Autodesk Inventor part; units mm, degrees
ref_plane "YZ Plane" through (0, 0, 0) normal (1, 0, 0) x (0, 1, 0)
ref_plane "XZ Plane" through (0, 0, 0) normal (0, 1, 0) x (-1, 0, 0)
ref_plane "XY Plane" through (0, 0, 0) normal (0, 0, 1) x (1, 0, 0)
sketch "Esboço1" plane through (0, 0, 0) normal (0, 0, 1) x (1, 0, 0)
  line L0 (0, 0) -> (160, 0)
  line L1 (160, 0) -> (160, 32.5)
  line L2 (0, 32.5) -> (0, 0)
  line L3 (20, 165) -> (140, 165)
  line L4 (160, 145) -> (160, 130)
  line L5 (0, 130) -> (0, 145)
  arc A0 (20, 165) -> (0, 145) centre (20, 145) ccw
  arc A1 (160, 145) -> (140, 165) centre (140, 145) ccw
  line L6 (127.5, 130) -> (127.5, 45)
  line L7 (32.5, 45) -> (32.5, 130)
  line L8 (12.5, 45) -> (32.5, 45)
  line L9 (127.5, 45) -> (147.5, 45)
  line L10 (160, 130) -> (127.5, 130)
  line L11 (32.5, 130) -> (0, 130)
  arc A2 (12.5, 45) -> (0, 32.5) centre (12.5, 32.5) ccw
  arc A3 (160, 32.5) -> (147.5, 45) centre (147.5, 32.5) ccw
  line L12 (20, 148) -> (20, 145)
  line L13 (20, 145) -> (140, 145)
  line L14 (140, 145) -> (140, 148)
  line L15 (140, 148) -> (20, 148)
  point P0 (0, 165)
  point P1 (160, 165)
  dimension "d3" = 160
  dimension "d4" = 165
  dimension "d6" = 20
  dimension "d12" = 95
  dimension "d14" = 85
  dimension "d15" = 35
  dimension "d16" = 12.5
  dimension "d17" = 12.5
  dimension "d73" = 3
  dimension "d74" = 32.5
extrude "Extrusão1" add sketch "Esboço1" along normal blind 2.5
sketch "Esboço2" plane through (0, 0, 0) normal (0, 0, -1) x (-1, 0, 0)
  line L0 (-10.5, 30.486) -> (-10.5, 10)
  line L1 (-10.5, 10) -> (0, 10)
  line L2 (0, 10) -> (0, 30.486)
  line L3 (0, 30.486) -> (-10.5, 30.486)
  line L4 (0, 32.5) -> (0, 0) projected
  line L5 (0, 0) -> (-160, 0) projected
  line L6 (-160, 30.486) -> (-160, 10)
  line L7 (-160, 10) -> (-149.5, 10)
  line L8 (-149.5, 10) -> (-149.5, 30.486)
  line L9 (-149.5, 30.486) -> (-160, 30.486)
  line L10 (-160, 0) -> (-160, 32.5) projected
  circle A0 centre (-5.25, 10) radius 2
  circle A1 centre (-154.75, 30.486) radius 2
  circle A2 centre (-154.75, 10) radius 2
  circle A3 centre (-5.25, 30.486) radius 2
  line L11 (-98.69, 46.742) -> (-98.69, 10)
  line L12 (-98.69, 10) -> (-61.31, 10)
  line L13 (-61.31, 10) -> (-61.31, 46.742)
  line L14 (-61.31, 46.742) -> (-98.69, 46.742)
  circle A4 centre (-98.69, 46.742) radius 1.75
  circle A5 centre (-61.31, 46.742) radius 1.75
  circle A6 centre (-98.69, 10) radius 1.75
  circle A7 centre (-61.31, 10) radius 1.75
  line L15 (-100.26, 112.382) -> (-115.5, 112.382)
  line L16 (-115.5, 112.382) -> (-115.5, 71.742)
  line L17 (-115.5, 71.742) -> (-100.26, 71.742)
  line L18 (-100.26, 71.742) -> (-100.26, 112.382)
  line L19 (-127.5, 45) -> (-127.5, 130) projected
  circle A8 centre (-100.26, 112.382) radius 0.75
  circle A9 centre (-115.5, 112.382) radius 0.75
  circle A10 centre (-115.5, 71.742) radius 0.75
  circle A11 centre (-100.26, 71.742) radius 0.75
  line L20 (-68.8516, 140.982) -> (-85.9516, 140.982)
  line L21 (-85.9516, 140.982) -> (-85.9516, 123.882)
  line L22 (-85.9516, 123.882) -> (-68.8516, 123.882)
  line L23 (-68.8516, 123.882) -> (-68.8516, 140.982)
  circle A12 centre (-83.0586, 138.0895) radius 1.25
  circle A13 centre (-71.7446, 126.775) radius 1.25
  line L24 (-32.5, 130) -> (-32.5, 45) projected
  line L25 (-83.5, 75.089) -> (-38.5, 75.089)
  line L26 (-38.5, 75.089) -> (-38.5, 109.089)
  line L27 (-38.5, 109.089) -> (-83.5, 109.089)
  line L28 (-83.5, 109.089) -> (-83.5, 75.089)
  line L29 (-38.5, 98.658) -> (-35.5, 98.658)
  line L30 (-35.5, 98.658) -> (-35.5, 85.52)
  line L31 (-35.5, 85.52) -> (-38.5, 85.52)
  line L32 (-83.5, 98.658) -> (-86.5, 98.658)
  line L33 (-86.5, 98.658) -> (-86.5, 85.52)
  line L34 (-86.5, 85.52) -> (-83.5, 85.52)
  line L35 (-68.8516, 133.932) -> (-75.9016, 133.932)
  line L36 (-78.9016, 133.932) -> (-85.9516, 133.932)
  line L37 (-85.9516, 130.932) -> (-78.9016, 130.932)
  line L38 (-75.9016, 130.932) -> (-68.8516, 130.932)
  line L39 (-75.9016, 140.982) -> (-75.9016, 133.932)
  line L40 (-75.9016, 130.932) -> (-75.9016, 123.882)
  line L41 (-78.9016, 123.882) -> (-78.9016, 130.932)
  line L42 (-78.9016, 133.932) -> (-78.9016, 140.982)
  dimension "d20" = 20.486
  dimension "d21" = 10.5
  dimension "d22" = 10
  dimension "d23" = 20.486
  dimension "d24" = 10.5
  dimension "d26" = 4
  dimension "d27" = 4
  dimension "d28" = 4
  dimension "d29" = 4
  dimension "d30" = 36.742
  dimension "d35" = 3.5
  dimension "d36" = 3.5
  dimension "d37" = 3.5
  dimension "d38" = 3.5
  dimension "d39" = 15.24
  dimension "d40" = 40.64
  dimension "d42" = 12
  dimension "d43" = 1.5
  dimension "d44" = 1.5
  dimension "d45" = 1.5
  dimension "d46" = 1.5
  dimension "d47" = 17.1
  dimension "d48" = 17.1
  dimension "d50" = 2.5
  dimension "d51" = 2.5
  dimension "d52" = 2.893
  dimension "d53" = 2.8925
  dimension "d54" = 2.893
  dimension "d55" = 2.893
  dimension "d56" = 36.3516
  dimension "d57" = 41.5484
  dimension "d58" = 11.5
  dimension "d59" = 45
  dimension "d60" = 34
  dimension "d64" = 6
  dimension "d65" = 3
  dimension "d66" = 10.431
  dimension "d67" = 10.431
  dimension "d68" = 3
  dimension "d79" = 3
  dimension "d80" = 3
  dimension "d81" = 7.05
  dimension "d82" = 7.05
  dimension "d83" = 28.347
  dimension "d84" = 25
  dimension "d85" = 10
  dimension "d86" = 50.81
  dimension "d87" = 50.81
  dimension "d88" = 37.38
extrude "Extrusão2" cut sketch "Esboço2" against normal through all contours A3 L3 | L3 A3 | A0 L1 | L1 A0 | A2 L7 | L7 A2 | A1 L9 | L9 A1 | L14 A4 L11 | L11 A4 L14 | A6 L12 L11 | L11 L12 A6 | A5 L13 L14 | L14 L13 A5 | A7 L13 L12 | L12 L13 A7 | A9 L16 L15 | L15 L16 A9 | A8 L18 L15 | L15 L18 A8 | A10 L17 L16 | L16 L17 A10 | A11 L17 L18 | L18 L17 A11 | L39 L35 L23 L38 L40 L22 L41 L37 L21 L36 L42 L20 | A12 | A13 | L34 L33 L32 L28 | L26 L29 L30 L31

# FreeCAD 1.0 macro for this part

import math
import FreeCAD as App
import Part
import Sketcher


def add_polygon(sketch, points):
    """Adds a closed chain of lines whose ends are joined by coincident constraints."""
    first, n = sketch.GeometryCount, len(points)
    for a, b in zip(points, points[1:] + points[:1]):
        sketch.addGeometry(Part.LineSegment(App.Vector(*a, 0), App.Vector(*b, 0)), False)
    for i in range(n):
        sketch.addConstraint(Sketcher.Constraint("Coincident", first + i, 2, first + (i + 1) % n, 1))

doc = App.newDocument("Part")
body = doc.addObject("PartDesign::Body", "Body")

# Sketch on XY plane
sketch1 = body.newObject("Sketcher::SketchObject", "Sketch")
sketch1.AttachmentSupport = (doc.getObject("XY_Plane"), [""])
sketch1.MapMode = "FlatFace"
sketch1.addGeometry(Part.LineSegment(App.Vector(0, 32.5, 0), App.Vector(0, 0, 0)), False)  # 0
sketch1.addGeometry(Part.LineSegment(App.Vector(0, 0, 0), App.Vector(160, 0, 0)), False)  # 1
sketch1.addGeometry(Part.LineSegment(App.Vector(160, 0, 0), App.Vector(160, 32.5, 0)), False)  # 2
sketch1.addGeometry(Part.ArcOfCircle(Part.Circle(App.Vector(147.5, 32.5, 0), App.Vector(0, 0, 1), 12.5), math.radians(0), math.radians(90)), False)  # 3
sketch1.addGeometry(Part.LineSegment(App.Vector(147.5, 45, 0), App.Vector(127.5, 45, 0)), False)  # 4
sketch1.addGeometry(Part.LineSegment(App.Vector(127.5, 45, 0), App.Vector(127.5, 130, 0)), False)  # 5
sketch1.addGeometry(Part.LineSegment(App.Vector(127.5, 130, 0), App.Vector(160, 130, 0)), False)  # 6
sketch1.addGeometry(Part.LineSegment(App.Vector(160, 130, 0), App.Vector(160, 145, 0)), False)  # 7
sketch1.addGeometry(Part.ArcOfCircle(Part.Circle(App.Vector(140, 145, 0), App.Vector(0, 0, 1), 20), math.radians(0), math.radians(90)), False)  # 8
sketch1.addGeometry(Part.LineSegment(App.Vector(140, 165, 0), App.Vector(20, 165, 0)), False)  # 9
sketch1.addGeometry(Part.ArcOfCircle(Part.Circle(App.Vector(20, 145, 0), App.Vector(0, 0, 1), 20), math.radians(90), math.radians(180)), False)  # 10
sketch1.addGeometry(Part.LineSegment(App.Vector(0, 145, 0), App.Vector(0, 130, 0)), False)  # 11
sketch1.addGeometry(Part.LineSegment(App.Vector(0, 130, 0), App.Vector(32.5, 130, 0)), False)  # 12
sketch1.addGeometry(Part.LineSegment(App.Vector(32.5, 130, 0), App.Vector(32.5, 45, 0)), False)  # 13
sketch1.addGeometry(Part.LineSegment(App.Vector(32.5, 45, 0), App.Vector(12.5, 45, 0)), False)  # 14
sketch1.addGeometry(Part.ArcOfCircle(Part.Circle(App.Vector(12.5, 32.5, 0), App.Vector(0, 0, 1), 12.5), math.radians(90), math.radians(180)), False)  # 15
add_polygon(sketch1, [(20, 145), (20, 148), (140, 148), (140, 145)])  # lines 16-19
sketch1.addConstraint(Sketcher.Constraint("Coincident", 0, 2, 1, 1))
sketch1.addConstraint(Sketcher.Constraint("Coincident", 1, 2, 2, 1))
sketch1.addConstraint(Sketcher.Constraint("Tangent", 2, 2, 3, 1))
sketch1.addConstraint(Sketcher.Constraint("Tangent", 3, 2, 4, 1))
sketch1.addConstraint(Sketcher.Constraint("Coincident", 4, 2, 5, 1))
sketch1.addConstraint(Sketcher.Constraint("Coincident", 5, 2, 6, 1))
sketch1.addConstraint(Sketcher.Constraint("Coincident", 6, 2, 7, 1))
sketch1.addConstraint(Sketcher.Constraint("Tangent", 7, 2, 8, 1))
sketch1.addConstraint(Sketcher.Constraint("Tangent", 8, 2, 9, 1))
sketch1.addConstraint(Sketcher.Constraint("Tangent", 9, 2, 10, 1))
sketch1.addConstraint(Sketcher.Constraint("Tangent", 10, 2, 11, 1))
sketch1.addConstraint(Sketcher.Constraint("Coincident", 11, 2, 12, 1))
sketch1.addConstraint(Sketcher.Constraint("Coincident", 12, 2, 13, 1))
sketch1.addConstraint(Sketcher.Constraint("Coincident", 13, 2, 14, 1))
sketch1.addConstraint(Sketcher.Constraint("Tangent", 14, 2, 15, 1))
sketch1.addConstraint(Sketcher.Constraint("Tangent", 15, 2, 0, 1))
sketch1.addConstraint(Sketcher.Constraint("Vertical", 0))
sketch1.addConstraint(Sketcher.Constraint("Horizontal", 1))
sketch1.addConstraint(Sketcher.Constraint("Vertical", 2))
sketch1.addConstraint(Sketcher.Constraint("Horizontal", 4))
sketch1.addConstraint(Sketcher.Constraint("Vertical", 5))
sketch1.addConstraint(Sketcher.Constraint("Horizontal", 6))
sketch1.addConstraint(Sketcher.Constraint("Vertical", 7))
sketch1.addConstraint(Sketcher.Constraint("Horizontal", 9))
sketch1.addConstraint(Sketcher.Constraint("Vertical", 11))
sketch1.addConstraint(Sketcher.Constraint("Horizontal", 12))
sketch1.addConstraint(Sketcher.Constraint("Vertical", 13))
sketch1.addConstraint(Sketcher.Constraint("Horizontal", 14))
sketch1.addConstraint(Sketcher.Constraint("Vertical", 16))
sketch1.addConstraint(Sketcher.Constraint("Horizontal", 17))
sketch1.addConstraint(Sketcher.Constraint("Vertical", 18))
sketch1.addConstraint(Sketcher.Constraint("Horizontal", 19))
sketch1.addConstraint(Sketcher.Constraint("Coincident", 0, 2, -1, 1))
sketch1.addConstraint(Sketcher.Constraint("Coincident", 18, 2, 8, 3))
sketch1.addConstraint(Sketcher.Constraint("Coincident", 19, 2, 10, 3))
sketch1.addConstraint(Sketcher.Constraint("Equal", 3, 15))
sketch1.addConstraint(Sketcher.Constraint("PointOnObject", 10, 2, -2))
sketch1.addConstraint(Sketcher.Constraint("Horizontal", 3, 3, 15, 3))
sketch1.addConstraint(Sketcher.Constraint("Horizontal", 6, 2, 11, 2))
sketch1.addConstraint(Sketcher.Constraint("Vertical", 2, 2, 6, 2))
sketch1.addConstraint(Sketcher.Constraint("Equal", 6, 12))
sketch1.addConstraint(Sketcher.Constraint("Equal", 12, 0))
sketch1.addConstraint(Sketcher.Constraint("Radius", 8, 20.0))
sketch1.addConstraint(Sketcher.Constraint("Radius", 3, 12.5))
sketch1.addConstraint(Sketcher.Constraint("DistanceX", 1, 1, 1, 2, 160.0))
sketch1.addConstraint(Sketcher.Constraint("DistanceX", 4, 2, 4, 1, 20.0))
sketch1.addConstraint(Sketcher.Constraint("DistanceY", 5, 1, 5, 2, 85.0))
sketch1.addConstraint(Sketcher.Constraint("DistanceY", 16, 1, 16, 2, 3.0))
sketch1.addConstraint(Sketcher.Constraint("DistanceY", -1, 1, 8, 2, 165.0))
pad1 = body.newObject("PartDesign::Pad", "Pad")
pad1.Profile = sketch1
pad1.Length = 2.5

# Sketch on XY plane
sketch2 = body.newObject("Sketcher::SketchObject", "Sketch001")
sketch2.AttachmentSupport = (doc.getObject("XY_Plane"), [""])
sketch2.MapMode = "FlatFace"
sketch2.addGeometry(Part.Circle(App.Vector(5.25, 30.486, 0), App.Vector(0, 0, 1), 2), False)  # 0
sketch2.addGeometry(Part.Circle(App.Vector(5.25, 10, 0), App.Vector(0, 0, 1), 2), False)  # 1
sketch2.addGeometry(Part.Circle(App.Vector(154.75, 10, 0), App.Vector(0, 0, 1), 2), False)  # 2
sketch2.addGeometry(Part.Circle(App.Vector(154.75, 30.486, 0), App.Vector(0, 0, 1), 2), False)  # 3
sketch2.addGeometry(Part.Circle(App.Vector(98.69, 46.742, 0), App.Vector(0, 0, 1), 1.75), False)  # 4
sketch2.addGeometry(Part.Circle(App.Vector(98.69, 10, 0), App.Vector(0, 0, 1), 1.75), False)  # 5
sketch2.addGeometry(Part.Circle(App.Vector(61.31, 46.742, 0), App.Vector(0, 0, 1), 1.75), False)  # 6
sketch2.addGeometry(Part.Circle(App.Vector(61.31, 10, 0), App.Vector(0, 0, 1), 1.75), False)  # 7
sketch2.addGeometry(Part.Circle(App.Vector(115.5, 112.382, 0), App.Vector(0, 0, 1), 0.75), False)  # 8
sketch2.addGeometry(Part.Circle(App.Vector(100.26, 112.382, 0), App.Vector(0, 0, 1), 0.75), False)  # 9
sketch2.addGeometry(Part.Circle(App.Vector(115.5, 71.742, 0), App.Vector(0, 0, 1), 0.75), False)  # 10
sketch2.addGeometry(Part.Circle(App.Vector(100.26, 71.742, 0), App.Vector(0, 0, 1), 0.75), False)  # 11
add_polygon(sketch2, [(75.9016, 133.932), (75.9016, 140.982), (78.9016, 140.982), (78.9016, 133.932), (85.9516, 133.932), (85.9516, 130.932), (78.9016, 130.932), (78.9016, 123.882), (75.9016, 123.882), (75.9016, 130.932), (68.8516, 130.932), (68.8516, 133.932)])  # lines 12-23
sketch2.addGeometry(Part.Circle(App.Vector(83.0586, 138.0895, 0), App.Vector(0, 0, 1), 1.25), False)  # 24
sketch2.addGeometry(Part.Circle(App.Vector(71.7446, 126.775, 0), App.Vector(0, 0, 1), 1.25), False)  # 25
add_polygon(sketch2, [(86.5, 85.52), (83.5, 85.52), (83.5, 98.658), (86.5, 98.658)])  # lines 26-29
add_polygon(sketch2, [(38.5, 98.658), (38.5, 85.52), (35.5, 85.52), (35.5, 98.658)])  # lines 30-33
sketch2.addConstraint(Sketcher.Constraint("Vertical", 12))
sketch2.addConstraint(Sketcher.Constraint("Horizontal", 13))
sketch2.addConstraint(Sketcher.Constraint("Vertical", 14))
sketch2.addConstraint(Sketcher.Constraint("Horizontal", 15))
sketch2.addConstraint(Sketcher.Constraint("Vertical", 16))
sketch2.addConstraint(Sketcher.Constraint("Horizontal", 17))
sketch2.addConstraint(Sketcher.Constraint("Vertical", 18))
sketch2.addConstraint(Sketcher.Constraint("Horizontal", 19))
sketch2.addConstraint(Sketcher.Constraint("Vertical", 20))
sketch2.addConstraint(Sketcher.Constraint("Horizontal", 21))
sketch2.addConstraint(Sketcher.Constraint("Vertical", 22))
sketch2.addConstraint(Sketcher.Constraint("Horizontal", 23))
sketch2.addConstraint(Sketcher.Constraint("Horizontal", 26))
sketch2.addConstraint(Sketcher.Constraint("Vertical", 27))
sketch2.addConstraint(Sketcher.Constraint("Horizontal", 28))
sketch2.addConstraint(Sketcher.Constraint("Vertical", 29))
sketch2.addConstraint(Sketcher.Constraint("Vertical", 30))
sketch2.addConstraint(Sketcher.Constraint("Horizontal", 31))
sketch2.addConstraint(Sketcher.Constraint("Vertical", 32))
sketch2.addConstraint(Sketcher.Constraint("Horizontal", 33))
sketch2.addConstraint(Sketcher.Constraint("Equal", 0, 1))
sketch2.addConstraint(Sketcher.Constraint("Equal", 1, 2))
sketch2.addConstraint(Sketcher.Constraint("Equal", 2, 3))
sketch2.addConstraint(Sketcher.Constraint("Equal", 4, 5))
sketch2.addConstraint(Sketcher.Constraint("Equal", 5, 6))
sketch2.addConstraint(Sketcher.Constraint("Equal", 6, 7))
sketch2.addConstraint(Sketcher.Constraint("Equal", 8, 9))
sketch2.addConstraint(Sketcher.Constraint("Equal", 9, 10))
sketch2.addConstraint(Sketcher.Constraint("Equal", 10, 11))
sketch2.addConstraint(Sketcher.Constraint("Equal", 24, 25))
sketch2.addConstraint(Sketcher.Constraint("Horizontal", 1, 3, 2, 3))
sketch2.addConstraint(Sketcher.Constraint("Horizontal", 0, 3, 3, 3))
sketch2.addConstraint(Sketcher.Constraint("Horizontal", 2, 3, 5, 3))
sketch2.addConstraint(Sketcher.Constraint("Horizontal", 4, 3, 6, 3))
sketch2.addConstraint(Sketcher.Constraint("Horizontal", 5, 3, 7, 3))
sketch2.addConstraint(Sketcher.Constraint("Horizontal", 8, 3, 9, 3))
sketch2.addConstraint(Sketcher.Constraint("Horizontal", 10, 3, 11, 3))
sketch2.addConstraint(Sketcher.Constraint("Horizontal", 17, 2, 20, 2))
sketch2.addConstraint(Sketcher.Constraint("Horizontal", 15, 2, 22, 2))
sketch2.addConstraint(Sketcher.Constraint("Horizontal", 29, 2, 30, 2))
sketch2.addConstraint(Sketcher.Constraint("Horizontal", 28, 2, 32, 2))
sketch2.addConstraint(Sketcher.Constraint("Vertical", 0, 3, 1, 3))
sketch2.addConstraint(Sketcher.Constraint("Vertical", 2, 3, 3, 3))
sketch2.addConstraint(Sketcher.Constraint("Vertical", 4, 3, 5, 3))
sketch2.addConstraint(Sketcher.Constraint("Vertical", 6, 3, 7, 3))
sketch2.addConstraint(Sketcher.Constraint("Vertical", 8, 3, 10, 3))
sketch2.addConstraint(Sketcher.Constraint("Vertical", 9, 3, 11, 3))
sketch2.addConstraint(Sketcher.Constraint("Vertical", 14, 2, 17, 2))
sketch2.addConstraint(Sketcher.Constraint("Vertical", 12, 2, 19, 2))
sketch2.addConstraint(Sketcher.Constraint("Equal", 17, 21))
sketch2.addConstraint(Sketcher.Constraint("Equal", 19, 26))
sketch2.addConstraint(Sketcher.Constraint("Equal", 28, 31))
sketch2.addConstraint(Sketcher.Constraint("Equal", 23, 12))
sketch2.addConstraint(Sketcher.Constraint("Equal", 33, 16))
sketch2.addConstraint(Sketcher.Constraint("Equal", 14, 18))
sketch2.addConstraint(Sketcher.Constraint("Diameter", 0, 4.0))
sketch2.addConstraint(Sketcher.Constraint("Diameter", 4, 3.5))
sketch2.addConstraint(Sketcher.Constraint("Diameter", 8, 1.5))
sketch2.addConstraint(Sketcher.Constraint("Diameter", 24, 2.5))
sketch2.addConstraint(Sketcher.Constraint("DistanceX", 13, 1, 13, 2, 3.0))
sketch2.addConstraint(Sketcher.Constraint("DistanceY", -1, 1, 1, 3, 10.0))
sketch2.addConstraint(Sketcher.Constraint("DistanceY", 4, 3, 10, 3, 25.0))
sketch2.addConstraint(Sketcher.Constraint("DistanceX", 30, 2, 26, 2, 45.0))
sketch2.addConstraint(Sketcher.Constraint("DistanceX", 15, 1, 15, 2, 7.05))
sketch2.addConstraint(Sketcher.Constraint("DistanceX", 6, 3, 4, 3, 37.38))
sketch2.addConstraint(Sketcher.Constraint("DistanceX", 9, 3, 8, 3, 15.24))
sketch2.addConstraint(Sketcher.Constraint("DistanceY", 10, 3, 8, 3, 40.64))
sketch2.addConstraint(Sketcher.Constraint("DistanceY", 1, 3, 0, 3, 20.486))
sketch2.addConstraint(Sketcher.Constraint("DistanceY", 2, 3, 4, 3, 36.742))
sketch2.addConstraint(Sketcher.Constraint("DistanceX", 24, 3, 15, 2, 2.893))
sketch2.addConstraint(Sketcher.Constraint("DistanceY", 18, 2, 25, 3, 2.893))
sketch2.addConstraint(Sketcher.Constraint("DistanceX", 21, 2, 25, 3, 2.893))
sketch2.addConstraint(Sketcher.Constraint("DistanceX", 26, 2, 10, 3, 32.0))
sketch2.addConstraint(Sketcher.Constraint("DistanceX", -1, 1, 8, 3, 115.5))
sketch2.addConstraint(Sketcher.Constraint("DistanceX", 1, 3, 2, 3, 149.5))
sketch2.addConstraint(Sketcher.Constraint("DistanceY", 24, 3, 12, 2, 2.8925))
sketch2.addConstraint(Sketcher.Constraint("DistanceY", 9, 3, 12, 2, 28.6))
sketch2.addConstraint(Sketcher.Constraint("DistanceY", 27, 1, 27, 2, 13.138))
sketch2.addConstraint(Sketcher.Constraint("DistanceX", -1, 1, 0, 3, 5.25))
sketch2.addConstraint(Sketcher.Constraint("DistanceX", -1, 1, 4, 3, 98.69))
sketch2.addConstraint(Sketcher.Constraint("DistanceY", -1, 1, 26, 2, 85.52))
sketch2.addConstraint(Sketcher.Constraint("DistanceX", -1, 1, 24, 3, 83.0586))
pocket1 = body.newObject("PartDesign::Pocket", "Pocket")
pocket1.Profile = sketch2
pocket1.Type = "ThroughAll"
pocket1.Reversed = True

doc.recompute()
